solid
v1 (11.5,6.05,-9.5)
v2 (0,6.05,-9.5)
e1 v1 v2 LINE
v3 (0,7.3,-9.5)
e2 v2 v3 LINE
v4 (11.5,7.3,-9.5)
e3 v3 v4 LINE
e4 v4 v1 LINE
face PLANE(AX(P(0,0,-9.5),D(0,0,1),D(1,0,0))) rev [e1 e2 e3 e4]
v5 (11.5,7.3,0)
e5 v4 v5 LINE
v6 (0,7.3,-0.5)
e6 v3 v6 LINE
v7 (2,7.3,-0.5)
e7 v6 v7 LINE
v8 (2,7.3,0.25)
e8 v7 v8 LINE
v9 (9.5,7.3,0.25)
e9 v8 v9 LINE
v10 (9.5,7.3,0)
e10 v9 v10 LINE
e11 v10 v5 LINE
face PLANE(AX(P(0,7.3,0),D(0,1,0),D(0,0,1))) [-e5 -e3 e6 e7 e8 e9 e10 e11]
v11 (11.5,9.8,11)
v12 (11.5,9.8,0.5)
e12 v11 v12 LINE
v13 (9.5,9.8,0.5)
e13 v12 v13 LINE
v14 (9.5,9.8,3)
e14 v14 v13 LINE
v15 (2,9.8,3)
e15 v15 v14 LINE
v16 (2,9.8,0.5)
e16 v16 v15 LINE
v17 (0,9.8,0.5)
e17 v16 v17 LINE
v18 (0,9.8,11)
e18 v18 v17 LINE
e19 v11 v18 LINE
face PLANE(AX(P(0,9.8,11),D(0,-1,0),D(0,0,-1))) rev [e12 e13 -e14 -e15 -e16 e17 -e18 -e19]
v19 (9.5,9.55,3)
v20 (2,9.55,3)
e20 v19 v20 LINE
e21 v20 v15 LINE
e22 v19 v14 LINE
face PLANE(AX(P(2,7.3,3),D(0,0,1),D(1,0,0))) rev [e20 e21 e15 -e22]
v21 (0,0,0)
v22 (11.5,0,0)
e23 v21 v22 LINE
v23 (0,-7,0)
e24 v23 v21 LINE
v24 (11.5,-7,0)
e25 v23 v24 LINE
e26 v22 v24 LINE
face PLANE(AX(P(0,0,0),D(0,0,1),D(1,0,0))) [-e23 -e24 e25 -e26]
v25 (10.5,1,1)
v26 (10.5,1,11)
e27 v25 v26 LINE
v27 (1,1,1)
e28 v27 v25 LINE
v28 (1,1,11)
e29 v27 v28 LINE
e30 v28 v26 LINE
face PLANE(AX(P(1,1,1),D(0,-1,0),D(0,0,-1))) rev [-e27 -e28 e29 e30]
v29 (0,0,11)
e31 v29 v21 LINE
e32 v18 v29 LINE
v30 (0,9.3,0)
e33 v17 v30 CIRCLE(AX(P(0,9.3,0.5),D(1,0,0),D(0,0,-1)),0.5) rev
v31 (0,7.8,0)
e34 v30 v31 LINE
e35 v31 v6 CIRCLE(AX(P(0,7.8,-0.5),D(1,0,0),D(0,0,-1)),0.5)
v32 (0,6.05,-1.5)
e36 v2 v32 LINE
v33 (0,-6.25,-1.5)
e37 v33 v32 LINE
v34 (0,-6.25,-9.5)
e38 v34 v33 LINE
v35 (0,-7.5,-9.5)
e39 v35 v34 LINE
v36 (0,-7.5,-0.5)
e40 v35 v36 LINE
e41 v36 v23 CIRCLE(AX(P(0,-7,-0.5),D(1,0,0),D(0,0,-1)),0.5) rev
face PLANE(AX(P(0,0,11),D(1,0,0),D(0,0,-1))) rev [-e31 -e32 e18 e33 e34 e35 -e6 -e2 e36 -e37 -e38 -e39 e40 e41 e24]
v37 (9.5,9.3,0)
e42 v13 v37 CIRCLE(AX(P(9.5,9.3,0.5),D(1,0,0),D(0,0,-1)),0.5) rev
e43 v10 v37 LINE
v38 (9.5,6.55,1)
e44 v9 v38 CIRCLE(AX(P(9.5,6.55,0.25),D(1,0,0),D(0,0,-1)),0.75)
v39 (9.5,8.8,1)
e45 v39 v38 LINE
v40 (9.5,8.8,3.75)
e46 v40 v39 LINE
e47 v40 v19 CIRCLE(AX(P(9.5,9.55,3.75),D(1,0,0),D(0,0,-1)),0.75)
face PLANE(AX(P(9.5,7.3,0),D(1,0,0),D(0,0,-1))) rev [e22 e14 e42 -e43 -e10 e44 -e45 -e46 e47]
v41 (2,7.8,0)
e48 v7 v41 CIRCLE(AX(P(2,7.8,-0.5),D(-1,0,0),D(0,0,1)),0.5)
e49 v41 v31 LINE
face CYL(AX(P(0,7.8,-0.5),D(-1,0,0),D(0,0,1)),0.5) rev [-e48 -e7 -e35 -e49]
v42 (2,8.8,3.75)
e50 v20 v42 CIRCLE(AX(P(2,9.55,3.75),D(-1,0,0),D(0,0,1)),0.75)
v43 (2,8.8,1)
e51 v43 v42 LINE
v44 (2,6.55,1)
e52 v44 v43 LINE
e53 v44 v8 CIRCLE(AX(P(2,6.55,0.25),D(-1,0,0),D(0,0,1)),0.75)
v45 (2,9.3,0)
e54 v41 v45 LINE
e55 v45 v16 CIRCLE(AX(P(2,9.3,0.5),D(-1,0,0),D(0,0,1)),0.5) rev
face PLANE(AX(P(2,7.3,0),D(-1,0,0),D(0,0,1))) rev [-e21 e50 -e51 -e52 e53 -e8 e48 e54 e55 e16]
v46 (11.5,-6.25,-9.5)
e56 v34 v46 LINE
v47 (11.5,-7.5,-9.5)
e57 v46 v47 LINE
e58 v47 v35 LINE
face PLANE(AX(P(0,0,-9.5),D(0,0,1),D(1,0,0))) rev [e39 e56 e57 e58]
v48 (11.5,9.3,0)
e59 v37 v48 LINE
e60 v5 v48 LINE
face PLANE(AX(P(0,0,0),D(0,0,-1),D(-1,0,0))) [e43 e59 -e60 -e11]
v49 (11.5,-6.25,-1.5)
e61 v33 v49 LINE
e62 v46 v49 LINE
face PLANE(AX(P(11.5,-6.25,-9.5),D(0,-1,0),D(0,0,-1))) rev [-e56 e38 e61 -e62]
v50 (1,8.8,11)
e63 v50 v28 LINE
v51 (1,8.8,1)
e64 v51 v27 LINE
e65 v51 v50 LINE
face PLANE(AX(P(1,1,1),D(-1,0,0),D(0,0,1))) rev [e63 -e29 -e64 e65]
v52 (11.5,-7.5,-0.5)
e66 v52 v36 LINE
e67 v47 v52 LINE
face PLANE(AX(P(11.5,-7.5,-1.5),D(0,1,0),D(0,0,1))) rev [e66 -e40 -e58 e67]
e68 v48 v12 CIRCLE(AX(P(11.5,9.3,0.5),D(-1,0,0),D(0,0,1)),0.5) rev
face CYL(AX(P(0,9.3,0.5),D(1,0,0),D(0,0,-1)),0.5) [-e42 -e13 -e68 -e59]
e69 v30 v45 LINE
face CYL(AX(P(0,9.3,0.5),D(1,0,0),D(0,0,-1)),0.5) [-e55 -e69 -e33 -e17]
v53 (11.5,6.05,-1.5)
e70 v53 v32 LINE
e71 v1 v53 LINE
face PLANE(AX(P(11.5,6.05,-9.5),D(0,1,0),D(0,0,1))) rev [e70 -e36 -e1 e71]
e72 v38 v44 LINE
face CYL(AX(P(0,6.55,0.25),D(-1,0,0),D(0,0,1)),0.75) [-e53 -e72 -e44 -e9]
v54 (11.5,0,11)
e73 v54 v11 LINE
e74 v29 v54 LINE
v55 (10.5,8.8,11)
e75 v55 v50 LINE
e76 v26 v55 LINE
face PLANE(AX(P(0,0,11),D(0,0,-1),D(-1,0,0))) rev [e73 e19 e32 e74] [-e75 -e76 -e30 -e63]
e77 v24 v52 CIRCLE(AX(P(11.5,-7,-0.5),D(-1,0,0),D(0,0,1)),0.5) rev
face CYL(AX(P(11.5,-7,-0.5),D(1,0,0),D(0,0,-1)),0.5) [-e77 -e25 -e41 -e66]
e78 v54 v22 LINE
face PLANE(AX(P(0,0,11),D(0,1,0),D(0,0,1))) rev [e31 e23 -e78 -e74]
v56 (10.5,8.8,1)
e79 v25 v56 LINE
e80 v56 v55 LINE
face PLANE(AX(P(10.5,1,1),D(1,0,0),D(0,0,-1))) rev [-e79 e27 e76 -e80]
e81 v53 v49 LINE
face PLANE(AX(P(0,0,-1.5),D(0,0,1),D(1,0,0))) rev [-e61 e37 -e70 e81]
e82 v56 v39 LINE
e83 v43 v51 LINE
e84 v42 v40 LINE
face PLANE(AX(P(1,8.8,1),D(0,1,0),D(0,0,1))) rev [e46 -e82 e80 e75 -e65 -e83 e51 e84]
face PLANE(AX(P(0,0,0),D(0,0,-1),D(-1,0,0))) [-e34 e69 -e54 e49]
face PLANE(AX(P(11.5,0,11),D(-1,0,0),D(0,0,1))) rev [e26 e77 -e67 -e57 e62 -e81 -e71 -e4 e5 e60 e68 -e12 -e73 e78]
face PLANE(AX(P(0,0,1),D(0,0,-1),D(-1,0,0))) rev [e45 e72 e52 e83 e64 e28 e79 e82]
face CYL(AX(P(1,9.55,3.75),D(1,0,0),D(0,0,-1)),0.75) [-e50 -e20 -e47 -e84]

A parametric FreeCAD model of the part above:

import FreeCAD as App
import Part
import Sketcher


def edges_at(feature, points):
    """Names of the edges that pass closest to the given points."""
    edges = feature.Shape.Edges
    near = lambda p: min(range(len(edges)), key=lambda i: edges[i].distToShape(Part.Vertex(*p))[0])
    return sorted({f"Edge{near(p) + 1}" for p in points})

doc = App.newDocument("Part")
body = doc.addObject("PartDesign::Body", "Body")

sketch1 = body.newObject("Sketcher::SketchObject", "Sketch")
sketch1.AttachmentSupport = (doc.getObject("XY_Plane"), [""])
sketch1.MapMode = "FlatFace"
sketch1.addGeometry([
    Part.LineSegment(App.Vector(0, 10, 0), App.Vector(0, 0, 0)),
    Part.LineSegment(App.Vector(0, 0, 0), App.Vector(12, 0, 0)),
    Part.LineSegment(App.Vector(12, 0, 0), App.Vector(12, 10, 0)),
    Part.LineSegment(App.Vector(12, 10, 0), App.Vector(0, 10, 0)),
], False)
sketch1.addConstraint([
    Sketcher.Constraint("Coincident", 0, 2, 1, 1),
    Sketcher.Constraint("Coincident", 1, 2, 2, 1),
    Sketcher.Constraint("Coincident", 2, 2, 3, 1),
    Sketcher.Constraint("Coincident", 3, 2, 0, 1),
    Sketcher.Constraint("Vertical", 0),
    Sketcher.Constraint("Horizontal", 1),
    Sketcher.Constraint("Vertical", 2),
    Sketcher.Constraint("Horizontal", 3),
    Sketcher.Constraint("Coincident", 0, 2, -1, 1),
    Sketcher.Constraint("DistanceX", 1, 1, 1, 2, 11.5),
    Sketcher.Constraint("DistanceY", 0, 2, 0, 1, 9.8),
])
pad1 = body.newObject("PartDesign::Pad", "Pad")
pad1.Profile = sketch1
pad1.Length = 11

sketch2 = body.newObject("Sketcher::SketchObject", "Sketch001")
sketch2.AttachmentSupport = (doc.getObject("XY_Plane"), [""])
sketch2.MapMode = "FlatFace"
sketch2.AttachmentOffset = App.Placement(App.Vector(0, 0, 11), App.Rotation())
sketch2.addGeometry([
    Part.LineSegment(App.Vector(1, 9, 0), App.Vector(1, 1, 0)),
    Part.LineSegment(App.Vector(1, 1, 0), App.Vector(10, 1, 0)),
    Part.LineSegment(App.Vector(10, 1, 0), App.Vector(10, 9, 0)),
    Part.LineSegment(App.Vector(10, 9, 0), App.Vector(1, 9, 0)),
], False)
sketch2.addConstraint([
    Sketcher.Constraint("Coincident", 0, 2, 1, 1),
    Sketcher.Constraint("Coincident", 1, 2, 2, 1),
    Sketcher.Constraint("Coincident", 2, 2, 3, 1),
    Sketcher.Constraint("Coincident", 3, 2, 0, 1),
    Sketcher.Constraint("Vertical", 0),
    Sketcher.Constraint("Horizontal", 1),
    Sketcher.Constraint("Vertical", 2),
    Sketcher.Constraint("Horizontal", 3),
    Sketcher.Constraint("DistanceX", 1, 1, 1, 2, 9.5),
    Sketcher.Constraint("DistanceY", 0, 2, 0, 1, 7.8),
    Sketcher.Constraint("DistanceX", -1, 1, 0, 2, 1.0),
    Sketcher.Constraint("DistanceY", -1, 1, 0, 2, 1.0),
])
pocket1 = body.newObject("PartDesign::Pocket", "Pocket")
pocket1.Profile = sketch2
pocket1.Length = 10

sketch3 = body.newObject("Sketcher::SketchObject", "Sketch002")
sketch3.AttachmentSupport = (doc.getObject("XZ_Plane"), [""])
sketch3.MapMode = "FlatFace"
sketch3.AttachmentOffset = App.Placement(App.Vector(0, 0, -9.8), App.Rotation())
sketch3.addGeometry([
    Part.LineSegment(App.Vector(2, 0, 0), App.Vector(2, 3, 0)),
    Part.LineSegment(App.Vector(2, 3, 0), App.Vector(9.5, 3, 0)),
    Part.LineSegment(App.Vector(9.5, 3, 0), App.Vector(9.5, 0, 0)),
    Part.LineSegment(App.Vector(9.5, 0, 0), App.Vector(2, 0, 0)),
], False)
sketch3.addConstraint([
    Sketcher.Constraint("Coincident", 0, 2, 1, 1),
    Sketcher.Constraint("Coincident", 1, 2, 2, 1),
    Sketcher.Constraint("Coincident", 2, 2, 3, 1),
    Sketcher.Constraint("Coincident", 3, 2, 0, 1),
    Sketcher.Constraint("Vertical", 0),
    Sketcher.Constraint("Horizontal", 1),
    Sketcher.Constraint("Vertical", 2),
    Sketcher.Constraint("Horizontal", 3),
    Sketcher.Constraint("PointOnObject", 2, 2, -1),
    Sketcher.Constraint("DistanceY", 0, 1, 0, 2, 3.0),
    Sketcher.Constraint("DistanceX", 1, 1, 1, 2, 7.5),
    Sketcher.Constraint("DistanceX", -1, 1, 0, 2, 2.0),
])
pocket2 = body.newObject("PartDesign::Pocket", "Pocket001")
pocket2.Profile = sketch3
pocket2.Length = 2.5
pocket2.Reversed = True
doc.recompute()

fillet = body.newObject("PartDesign::Fillet", "Fillet")
fillet.Base = (pocket2, edges_at(pocket2, [(5.75, 7.3, 1), (5.75, 8.8, 3)]))
fillet.Radius = 0.75

sketch4 = body.newObject("Sketcher::SketchObject", "Sketch003")
sketch4.AttachmentSupport = (doc.getObject("XY_Plane"), [""])
sketch4.MapMode = "FlatFace"
sketch4.addGeometry([
    Part.LineSegment(App.Vector(12, 7, 0), App.Vector(12, -8, 0)),
    Part.LineSegment(App.Vector(12, -8, 0), App.Vector(0, -8, 0)),
    Part.LineSegment(App.Vector(0, -8, 0), App.Vector(0, 7, 0)),
    Part.LineSegment(App.Vector(0, 7, 0), App.Vector(12, 7, 0)),
], False)
sketch4.addConstraint([
    Sketcher.Constraint("Coincident", 0, 2, 1, 1),
    Sketcher.Constraint("Coincident", 1, 2, 2, 1),
    Sketcher.Constraint("Coincident", 2, 2, 3, 1),
    Sketcher.Constraint("Coincident", 3, 2, 0, 1),
    Sketcher.Constraint("Vertical", 0),
    Sketcher.Constraint("Horizontal", 1),
    Sketcher.Constraint("Vertical", 2),
    Sketcher.Constraint("Horizontal", 3),
    Sketcher.Constraint("PointOnObject", 1, 2, -2),
    Sketcher.Constraint("DistanceX", 1, 2, 1, 1, 11.5),
    Sketcher.Constraint("DistanceY", 0, 2, 0, 1, 14.8),
    Sketcher.Constraint("DistanceY", 0, 2, -1, 1, 7.5),
])
pad2 = body.newObject("PartDesign::Pad", "Pad001")
pad2.Profile = sketch4
pad2.Length = 1.5
pad2.Reversed = True

sketch5 = body.newObject("Sketcher::SketchObject", "Sketch004")
sketch5.AttachmentSupport = (doc.getObject("XY_Plane"), [""])
sketch5.MapMode = "FlatFace"
sketch5.AttachmentOffset = App.Placement(App.Vector(0, 0, -1.5), App.Rotation())
sketch5.addGeometry([
    Part.LineSegment(App.Vector(11.5, 7.3, 0), App.Vector(11.5, 6, 0)),
    Part.LineSegment(App.Vector(11.5, 6, 0), App.Vector(0, 6, 0)),
    Part.LineSegment(App.Vector(0, 6, 0), App.Vector(0, 7.3, 0)),
    Part.LineSegment(App.Vector(0, 7.3, 0), App.Vector(11.5, 7.3, 0)),
    Part.LineSegment(App.Vector(11.5, -6.2, 0), App.Vector(11.5, -7.5, 0)),
    Part.LineSegment(App.Vector(11.5, -7.5, 0), App.Vector(0, -7.5, 0)),
    Part.LineSegment(App.Vector(0, -7.5, 0), App.Vector(0, -6.2, 0)),
    Part.LineSegment(App.Vector(0, -6.2, 0), App.Vector(11.5, -6.2, 0)),
], False)
sketch5.addConstraint([
    Sketcher.Constraint("Coincident", 0, 2, 1, 1),
    Sketcher.Constraint("Coincident", 1, 2, 2, 1),
    Sketcher.Constraint("Coincident", 2, 2, 3, 1),
    Sketcher.Constraint("Coincident", 3, 2, 0, 1),
    Sketcher.Constraint("Coincident", 4, 2, 5, 1),
    Sketcher.Constraint("Coincident", 5, 2, 6, 1),
    Sketcher.Constraint("Coincident", 6, 2, 7, 1),
    Sketcher.Constraint("Coincident", 7, 2, 4, 1),
    Sketcher.Constraint("Vertical", 0),
    Sketcher.Constraint("Horizontal", 1),
    Sketcher.Constraint("Vertical", 2),
    Sketcher.Constraint("Horizontal", 3),
    Sketcher.Constraint("Vertical", 4),
    Sketcher.Constraint("Horizontal", 5),
    Sketcher.Constraint("Vertical", 6),
    Sketcher.Constraint("Horizontal", 7),
    Sketcher.Constraint("PointOnObject", 1, 2, -2),
    Sketcher.Constraint("PointOnObject", 5, 2, -2),
    Sketcher.Constraint("Vertical", 3, 2, 4, 2),
    Sketcher.Constraint("Equal", 2, 4),
    Sketcher.Constraint("DistanceX", 1, 2, 1, 1, 11.5),
    Sketcher.Constraint("DistanceY", 0, 2, 0, 1, 1.25),
    Sketcher.Constraint("DistanceY", -1, 1, 2, 2, 7.3),
    Sketcher.Constraint("DistanceY", 4, 2, -1, 1, 7.5),
])
pad3 = body.newObject("PartDesign::Pad", "Pad002")
pad3.Profile = sketch5
pad3.Length = 8
pad3.Reversed = True
doc.recompute()

fillet2 = body.newObject("PartDesign::Fillet", "Fillet001")
fillet2.Base = (pad3, edges_at(pad3, [(5.75, -7.5, 0)]))
fillet2.Radius = 0.5
doc.recompute()

fillet3 = body.newObject("PartDesign::Fillet", "Fillet002")
fillet3.Base = (fillet2, edges_at(fillet2, [(1, 9.8, 0), (10.5, 9.8, 0), (1, 7.3, 0)]))
fillet3.Radius = 0.5

doc.recompute()
